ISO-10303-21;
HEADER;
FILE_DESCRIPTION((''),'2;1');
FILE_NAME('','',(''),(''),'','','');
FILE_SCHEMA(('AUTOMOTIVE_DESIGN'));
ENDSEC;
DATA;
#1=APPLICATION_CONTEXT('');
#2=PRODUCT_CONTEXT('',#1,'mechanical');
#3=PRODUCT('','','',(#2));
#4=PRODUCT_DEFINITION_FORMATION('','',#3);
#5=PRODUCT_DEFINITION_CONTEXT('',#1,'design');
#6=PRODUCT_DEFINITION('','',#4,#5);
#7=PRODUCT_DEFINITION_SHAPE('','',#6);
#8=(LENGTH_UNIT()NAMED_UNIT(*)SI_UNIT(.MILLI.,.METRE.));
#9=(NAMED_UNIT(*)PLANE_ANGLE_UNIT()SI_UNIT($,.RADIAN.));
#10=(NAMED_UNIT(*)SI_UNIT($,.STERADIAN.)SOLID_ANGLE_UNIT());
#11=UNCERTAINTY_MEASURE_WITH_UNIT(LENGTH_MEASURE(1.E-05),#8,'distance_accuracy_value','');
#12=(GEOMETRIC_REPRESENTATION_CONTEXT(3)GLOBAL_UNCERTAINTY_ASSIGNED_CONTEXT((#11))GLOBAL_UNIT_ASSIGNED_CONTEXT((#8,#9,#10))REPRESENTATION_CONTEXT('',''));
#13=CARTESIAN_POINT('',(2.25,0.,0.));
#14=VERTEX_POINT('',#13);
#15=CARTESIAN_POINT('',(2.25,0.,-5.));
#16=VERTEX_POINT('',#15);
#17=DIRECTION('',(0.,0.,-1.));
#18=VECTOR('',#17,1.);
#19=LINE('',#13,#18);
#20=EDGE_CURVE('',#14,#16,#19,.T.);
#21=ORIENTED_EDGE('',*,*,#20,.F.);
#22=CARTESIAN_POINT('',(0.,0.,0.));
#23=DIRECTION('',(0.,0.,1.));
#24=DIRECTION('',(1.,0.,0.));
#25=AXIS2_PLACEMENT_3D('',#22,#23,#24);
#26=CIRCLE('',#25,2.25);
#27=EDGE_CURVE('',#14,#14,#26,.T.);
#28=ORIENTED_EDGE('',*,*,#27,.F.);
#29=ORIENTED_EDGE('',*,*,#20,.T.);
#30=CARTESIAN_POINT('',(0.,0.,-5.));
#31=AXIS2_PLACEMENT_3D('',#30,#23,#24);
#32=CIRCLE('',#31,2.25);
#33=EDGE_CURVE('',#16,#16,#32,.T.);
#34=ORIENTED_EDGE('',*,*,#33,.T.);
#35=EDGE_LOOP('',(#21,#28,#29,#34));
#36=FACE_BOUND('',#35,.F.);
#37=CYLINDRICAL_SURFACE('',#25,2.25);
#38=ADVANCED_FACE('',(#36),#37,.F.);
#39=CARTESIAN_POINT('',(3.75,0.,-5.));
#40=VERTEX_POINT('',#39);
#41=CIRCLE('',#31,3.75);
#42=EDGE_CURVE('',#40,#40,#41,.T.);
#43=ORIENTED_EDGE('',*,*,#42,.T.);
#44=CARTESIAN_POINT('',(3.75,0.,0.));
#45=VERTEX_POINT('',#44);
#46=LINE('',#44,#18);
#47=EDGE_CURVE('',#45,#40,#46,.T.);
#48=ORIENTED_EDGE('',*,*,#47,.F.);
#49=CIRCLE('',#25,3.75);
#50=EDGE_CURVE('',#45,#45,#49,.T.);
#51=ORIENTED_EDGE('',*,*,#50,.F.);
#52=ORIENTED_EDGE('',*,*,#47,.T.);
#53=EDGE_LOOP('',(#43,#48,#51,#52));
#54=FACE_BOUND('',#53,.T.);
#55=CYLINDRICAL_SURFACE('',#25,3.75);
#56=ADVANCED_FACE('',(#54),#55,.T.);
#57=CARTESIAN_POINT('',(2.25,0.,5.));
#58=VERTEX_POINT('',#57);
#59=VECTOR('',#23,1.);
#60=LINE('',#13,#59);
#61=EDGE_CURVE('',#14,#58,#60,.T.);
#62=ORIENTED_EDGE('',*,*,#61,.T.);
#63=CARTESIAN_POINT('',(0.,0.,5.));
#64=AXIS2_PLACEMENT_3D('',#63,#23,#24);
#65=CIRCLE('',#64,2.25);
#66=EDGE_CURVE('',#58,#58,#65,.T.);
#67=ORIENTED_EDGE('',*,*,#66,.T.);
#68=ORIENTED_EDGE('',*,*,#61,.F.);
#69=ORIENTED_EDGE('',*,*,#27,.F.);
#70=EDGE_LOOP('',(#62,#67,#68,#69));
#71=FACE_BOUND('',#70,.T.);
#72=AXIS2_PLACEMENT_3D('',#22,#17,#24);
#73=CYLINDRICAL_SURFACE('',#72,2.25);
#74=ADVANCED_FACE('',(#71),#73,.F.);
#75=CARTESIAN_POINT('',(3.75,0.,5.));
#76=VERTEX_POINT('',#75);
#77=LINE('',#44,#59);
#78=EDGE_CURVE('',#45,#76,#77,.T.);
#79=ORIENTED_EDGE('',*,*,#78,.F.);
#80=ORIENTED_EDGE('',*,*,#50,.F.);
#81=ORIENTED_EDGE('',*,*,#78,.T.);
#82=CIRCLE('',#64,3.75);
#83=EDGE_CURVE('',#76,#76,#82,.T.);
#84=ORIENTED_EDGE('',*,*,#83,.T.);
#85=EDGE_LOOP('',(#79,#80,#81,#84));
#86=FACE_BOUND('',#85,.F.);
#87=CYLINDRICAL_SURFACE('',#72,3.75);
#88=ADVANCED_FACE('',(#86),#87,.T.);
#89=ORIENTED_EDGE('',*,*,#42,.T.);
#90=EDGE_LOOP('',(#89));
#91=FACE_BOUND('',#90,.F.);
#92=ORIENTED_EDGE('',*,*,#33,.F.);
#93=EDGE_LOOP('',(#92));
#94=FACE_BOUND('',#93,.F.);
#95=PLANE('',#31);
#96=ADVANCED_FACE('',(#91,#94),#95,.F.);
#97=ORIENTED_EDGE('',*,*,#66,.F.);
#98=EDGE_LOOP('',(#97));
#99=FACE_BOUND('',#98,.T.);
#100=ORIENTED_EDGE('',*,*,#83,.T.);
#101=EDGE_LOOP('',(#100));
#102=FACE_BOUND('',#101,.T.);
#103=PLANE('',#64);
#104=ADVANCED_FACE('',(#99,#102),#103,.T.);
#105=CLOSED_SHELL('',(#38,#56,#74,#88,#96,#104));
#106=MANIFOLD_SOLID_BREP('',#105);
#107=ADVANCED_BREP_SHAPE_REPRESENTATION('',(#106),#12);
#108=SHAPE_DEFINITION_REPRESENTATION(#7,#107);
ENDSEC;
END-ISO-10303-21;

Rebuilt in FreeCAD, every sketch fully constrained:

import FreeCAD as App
import Part
import Sketcher
from FreeCAD import Vector

doc = App.newDocument("Part")
body = doc.addObject("PartDesign::Body", "Body")

# Sketch on XY plane
sketch1 = body.newObject("Sketcher::SketchObject", "Sketch")
sketch1.AttachmentSupport = (doc.getObject("XY_Plane"), [""])
sketch1.MapMode = "FlatFace"
sketch1.addGeometry([
    Part.Circle(Vector(0, 0, 0), Vector(0, 0, 1), 3.8),
    Part.Circle(Vector(0, 0, 0), Vector(0, 0, 1), 2.2),
], False)
sketch1.addConstraint([
    Sketcher.Constraint("Coincident", 0, 3, -1, 1),
    Sketcher.Constraint("Coincident", 1, 3, -1, 1),
    Sketcher.Constraint("Diameter", 0, 7.5),
    Sketcher.Constraint("Diameter", 1, 4.5),
])
pad1 = body.newObject("PartDesign::Pad", "Pad")
pad1.Profile = sketch1
pad1.Length = 10
pad1.Midplane = True

doc.recompute()
